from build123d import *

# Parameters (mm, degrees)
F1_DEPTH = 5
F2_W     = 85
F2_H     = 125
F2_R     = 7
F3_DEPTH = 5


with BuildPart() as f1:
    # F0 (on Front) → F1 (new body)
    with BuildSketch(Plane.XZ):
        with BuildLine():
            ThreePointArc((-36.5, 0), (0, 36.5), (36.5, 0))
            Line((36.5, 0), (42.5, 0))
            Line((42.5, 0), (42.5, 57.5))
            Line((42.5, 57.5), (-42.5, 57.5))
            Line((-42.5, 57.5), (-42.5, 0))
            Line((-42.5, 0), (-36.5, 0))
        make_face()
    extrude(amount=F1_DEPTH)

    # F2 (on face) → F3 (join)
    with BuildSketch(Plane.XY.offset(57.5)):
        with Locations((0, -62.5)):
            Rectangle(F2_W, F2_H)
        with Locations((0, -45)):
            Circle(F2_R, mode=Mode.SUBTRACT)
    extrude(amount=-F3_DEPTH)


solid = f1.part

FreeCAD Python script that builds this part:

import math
import FreeCAD as App
import Part
import Sketcher

V = App.Vector
Q = App.Units.Quantity

doc = App.newDocument("Part")
body = doc.addObject("PartDesign::Body", "Body")

# Sketch on XZ plane
sketch1 = body.newObject("Sketcher::SketchObject", "Sketch")
sketch1.AttachmentSupport = (doc.getObject("XZ_Plane"), [""])
sketch1.MapMode = "FlatFace"
sketch1.addGeometry([
    Part.ArcOfCircle(Part.Circle(V(0, 0, 0), V(0, 0, 1), 36.5), math.radians(0), math.radians(180)),  # 0
    Part.LineSegment(V(36.5, 0, 0), V(42.5, 0, 0)),  # 1
    Part.LineSegment(V(42.5, 0, 0), V(42.5, 57.5, 0)),  # 2
    Part.LineSegment(V(42.5, 57.5, 0), V(-42.5, 57.5, 0)),  # 3
    Part.LineSegment(V(-42.5, 57.5, 0), V(-42.5, 0, 0)),  # 4
    Part.LineSegment(V(-42.5, 0, 0), V(-36.5, 0, 0)),  # 5
], False)
sketch1.addConstraint([
    Sketcher.Constraint("Coincident", 0, 1, 1, 1),
    Sketcher.Constraint("Coincident", 1, 2, 2, 1),
    Sketcher.Constraint("Coincident", 2, 2, 3, 1),
    Sketcher.Constraint("Coincident", 3, 2, 4, 1),
    Sketcher.Constraint("Coincident", 4, 2, 5, 1),
    Sketcher.Constraint("Coincident", 5, 2, 0, 2),
    Sketcher.Constraint("Horizontal", 1),
    Sketcher.Constraint("Vertical", 2),
    Sketcher.Constraint("Horizontal", 3),
    Sketcher.Constraint("Vertical", 4),
    Sketcher.Constraint("Horizontal", 5),
    Sketcher.Constraint("Coincident", 0, 3, -1, 1),
    Sketcher.Constraint("Symmetric", 1, 2, 4, 2, -1, 1),
    Sketcher.Constraint("PointOnObject", 0, 1, -1),
    Sketcher.Constraint("Radius", 0, Q("36.5 mm")),
    Sketcher.Constraint("DistanceX", 1, 1, 1, 2, Q("6 mm")),
    Sketcher.Constraint("DistanceY", 2, 1, 2, 2, Q("57.5 mm")),
])
pad1 = body.newObject("PartDesign::Pad", "Pad")
pad1.Profile = sketch1
pad1.Length = 5

# Sketch on XY plane
sketch2 = body.newObject("Sketcher::SketchObject", "Sketch001")
sketch2.AttachmentSupport = (doc.getObject("XY_Plane"), [""])
sketch2.MapMode = "FlatFace"
sketch2.AttachmentOffset = App.Placement(V(0, 0, 57.5), App.Rotation())
sketch2.addGeometry([
    Part.LineSegment(V(-42.5, 0, 0), V(-42.5, -125, 0)),  # 0
    Part.LineSegment(V(-42.5, -125, 0), V(42.5, -125, 0)),  # 1
    Part.LineSegment(V(42.5, -125, 0), V(42.5, 0, 0)),  # 2
    Part.LineSegment(V(42.5, 0, 0), V(-42.5, 0, 0)),  # 3
    Part.Circle(V(0, -45, 0), V(0, 0, 1), 7),  # 4
], False)
sketch2.addConstraint([
    Sketcher.Constraint("Coincident", 0, 2, 1, 1),
    Sketcher.Constraint("Coincident", 1, 2, 2, 1),
    Sketcher.Constraint("Coincident", 2, 2, 3, 1),
    Sketcher.Constraint("Coincident", 3, 2, 0, 1),
    Sketcher.Constraint("Vertical", 0),
    Sketcher.Constraint("Horizontal", 1),
    Sketcher.Constraint("Vertical", 2),
    Sketcher.Constraint("Horizontal", 3),
    Sketcher.Constraint("Symmetric", 2, 2, 3, 2, -1, 1),
    Sketcher.Constraint("PointOnObject", 4, 3, -2),
    Sketcher.Constraint("Diameter", 4, Q("14 mm")),
    Sketcher.Constraint("DistanceX", 1, 1, 1, 2, Q("85 mm")),
    Sketcher.Constraint("DistanceY", 0, 2, 0, 1, Q("125 mm")),
    Sketcher.Constraint("DistanceY", 4, 3, -1, 1, Q("45 mm")),
])
pad2 = body.newObject("PartDesign::Pad", "Pad001")
pad2.Profile = sketch2
pad2.Length = 5
pad2.Reversed = True

doc.recompute()
